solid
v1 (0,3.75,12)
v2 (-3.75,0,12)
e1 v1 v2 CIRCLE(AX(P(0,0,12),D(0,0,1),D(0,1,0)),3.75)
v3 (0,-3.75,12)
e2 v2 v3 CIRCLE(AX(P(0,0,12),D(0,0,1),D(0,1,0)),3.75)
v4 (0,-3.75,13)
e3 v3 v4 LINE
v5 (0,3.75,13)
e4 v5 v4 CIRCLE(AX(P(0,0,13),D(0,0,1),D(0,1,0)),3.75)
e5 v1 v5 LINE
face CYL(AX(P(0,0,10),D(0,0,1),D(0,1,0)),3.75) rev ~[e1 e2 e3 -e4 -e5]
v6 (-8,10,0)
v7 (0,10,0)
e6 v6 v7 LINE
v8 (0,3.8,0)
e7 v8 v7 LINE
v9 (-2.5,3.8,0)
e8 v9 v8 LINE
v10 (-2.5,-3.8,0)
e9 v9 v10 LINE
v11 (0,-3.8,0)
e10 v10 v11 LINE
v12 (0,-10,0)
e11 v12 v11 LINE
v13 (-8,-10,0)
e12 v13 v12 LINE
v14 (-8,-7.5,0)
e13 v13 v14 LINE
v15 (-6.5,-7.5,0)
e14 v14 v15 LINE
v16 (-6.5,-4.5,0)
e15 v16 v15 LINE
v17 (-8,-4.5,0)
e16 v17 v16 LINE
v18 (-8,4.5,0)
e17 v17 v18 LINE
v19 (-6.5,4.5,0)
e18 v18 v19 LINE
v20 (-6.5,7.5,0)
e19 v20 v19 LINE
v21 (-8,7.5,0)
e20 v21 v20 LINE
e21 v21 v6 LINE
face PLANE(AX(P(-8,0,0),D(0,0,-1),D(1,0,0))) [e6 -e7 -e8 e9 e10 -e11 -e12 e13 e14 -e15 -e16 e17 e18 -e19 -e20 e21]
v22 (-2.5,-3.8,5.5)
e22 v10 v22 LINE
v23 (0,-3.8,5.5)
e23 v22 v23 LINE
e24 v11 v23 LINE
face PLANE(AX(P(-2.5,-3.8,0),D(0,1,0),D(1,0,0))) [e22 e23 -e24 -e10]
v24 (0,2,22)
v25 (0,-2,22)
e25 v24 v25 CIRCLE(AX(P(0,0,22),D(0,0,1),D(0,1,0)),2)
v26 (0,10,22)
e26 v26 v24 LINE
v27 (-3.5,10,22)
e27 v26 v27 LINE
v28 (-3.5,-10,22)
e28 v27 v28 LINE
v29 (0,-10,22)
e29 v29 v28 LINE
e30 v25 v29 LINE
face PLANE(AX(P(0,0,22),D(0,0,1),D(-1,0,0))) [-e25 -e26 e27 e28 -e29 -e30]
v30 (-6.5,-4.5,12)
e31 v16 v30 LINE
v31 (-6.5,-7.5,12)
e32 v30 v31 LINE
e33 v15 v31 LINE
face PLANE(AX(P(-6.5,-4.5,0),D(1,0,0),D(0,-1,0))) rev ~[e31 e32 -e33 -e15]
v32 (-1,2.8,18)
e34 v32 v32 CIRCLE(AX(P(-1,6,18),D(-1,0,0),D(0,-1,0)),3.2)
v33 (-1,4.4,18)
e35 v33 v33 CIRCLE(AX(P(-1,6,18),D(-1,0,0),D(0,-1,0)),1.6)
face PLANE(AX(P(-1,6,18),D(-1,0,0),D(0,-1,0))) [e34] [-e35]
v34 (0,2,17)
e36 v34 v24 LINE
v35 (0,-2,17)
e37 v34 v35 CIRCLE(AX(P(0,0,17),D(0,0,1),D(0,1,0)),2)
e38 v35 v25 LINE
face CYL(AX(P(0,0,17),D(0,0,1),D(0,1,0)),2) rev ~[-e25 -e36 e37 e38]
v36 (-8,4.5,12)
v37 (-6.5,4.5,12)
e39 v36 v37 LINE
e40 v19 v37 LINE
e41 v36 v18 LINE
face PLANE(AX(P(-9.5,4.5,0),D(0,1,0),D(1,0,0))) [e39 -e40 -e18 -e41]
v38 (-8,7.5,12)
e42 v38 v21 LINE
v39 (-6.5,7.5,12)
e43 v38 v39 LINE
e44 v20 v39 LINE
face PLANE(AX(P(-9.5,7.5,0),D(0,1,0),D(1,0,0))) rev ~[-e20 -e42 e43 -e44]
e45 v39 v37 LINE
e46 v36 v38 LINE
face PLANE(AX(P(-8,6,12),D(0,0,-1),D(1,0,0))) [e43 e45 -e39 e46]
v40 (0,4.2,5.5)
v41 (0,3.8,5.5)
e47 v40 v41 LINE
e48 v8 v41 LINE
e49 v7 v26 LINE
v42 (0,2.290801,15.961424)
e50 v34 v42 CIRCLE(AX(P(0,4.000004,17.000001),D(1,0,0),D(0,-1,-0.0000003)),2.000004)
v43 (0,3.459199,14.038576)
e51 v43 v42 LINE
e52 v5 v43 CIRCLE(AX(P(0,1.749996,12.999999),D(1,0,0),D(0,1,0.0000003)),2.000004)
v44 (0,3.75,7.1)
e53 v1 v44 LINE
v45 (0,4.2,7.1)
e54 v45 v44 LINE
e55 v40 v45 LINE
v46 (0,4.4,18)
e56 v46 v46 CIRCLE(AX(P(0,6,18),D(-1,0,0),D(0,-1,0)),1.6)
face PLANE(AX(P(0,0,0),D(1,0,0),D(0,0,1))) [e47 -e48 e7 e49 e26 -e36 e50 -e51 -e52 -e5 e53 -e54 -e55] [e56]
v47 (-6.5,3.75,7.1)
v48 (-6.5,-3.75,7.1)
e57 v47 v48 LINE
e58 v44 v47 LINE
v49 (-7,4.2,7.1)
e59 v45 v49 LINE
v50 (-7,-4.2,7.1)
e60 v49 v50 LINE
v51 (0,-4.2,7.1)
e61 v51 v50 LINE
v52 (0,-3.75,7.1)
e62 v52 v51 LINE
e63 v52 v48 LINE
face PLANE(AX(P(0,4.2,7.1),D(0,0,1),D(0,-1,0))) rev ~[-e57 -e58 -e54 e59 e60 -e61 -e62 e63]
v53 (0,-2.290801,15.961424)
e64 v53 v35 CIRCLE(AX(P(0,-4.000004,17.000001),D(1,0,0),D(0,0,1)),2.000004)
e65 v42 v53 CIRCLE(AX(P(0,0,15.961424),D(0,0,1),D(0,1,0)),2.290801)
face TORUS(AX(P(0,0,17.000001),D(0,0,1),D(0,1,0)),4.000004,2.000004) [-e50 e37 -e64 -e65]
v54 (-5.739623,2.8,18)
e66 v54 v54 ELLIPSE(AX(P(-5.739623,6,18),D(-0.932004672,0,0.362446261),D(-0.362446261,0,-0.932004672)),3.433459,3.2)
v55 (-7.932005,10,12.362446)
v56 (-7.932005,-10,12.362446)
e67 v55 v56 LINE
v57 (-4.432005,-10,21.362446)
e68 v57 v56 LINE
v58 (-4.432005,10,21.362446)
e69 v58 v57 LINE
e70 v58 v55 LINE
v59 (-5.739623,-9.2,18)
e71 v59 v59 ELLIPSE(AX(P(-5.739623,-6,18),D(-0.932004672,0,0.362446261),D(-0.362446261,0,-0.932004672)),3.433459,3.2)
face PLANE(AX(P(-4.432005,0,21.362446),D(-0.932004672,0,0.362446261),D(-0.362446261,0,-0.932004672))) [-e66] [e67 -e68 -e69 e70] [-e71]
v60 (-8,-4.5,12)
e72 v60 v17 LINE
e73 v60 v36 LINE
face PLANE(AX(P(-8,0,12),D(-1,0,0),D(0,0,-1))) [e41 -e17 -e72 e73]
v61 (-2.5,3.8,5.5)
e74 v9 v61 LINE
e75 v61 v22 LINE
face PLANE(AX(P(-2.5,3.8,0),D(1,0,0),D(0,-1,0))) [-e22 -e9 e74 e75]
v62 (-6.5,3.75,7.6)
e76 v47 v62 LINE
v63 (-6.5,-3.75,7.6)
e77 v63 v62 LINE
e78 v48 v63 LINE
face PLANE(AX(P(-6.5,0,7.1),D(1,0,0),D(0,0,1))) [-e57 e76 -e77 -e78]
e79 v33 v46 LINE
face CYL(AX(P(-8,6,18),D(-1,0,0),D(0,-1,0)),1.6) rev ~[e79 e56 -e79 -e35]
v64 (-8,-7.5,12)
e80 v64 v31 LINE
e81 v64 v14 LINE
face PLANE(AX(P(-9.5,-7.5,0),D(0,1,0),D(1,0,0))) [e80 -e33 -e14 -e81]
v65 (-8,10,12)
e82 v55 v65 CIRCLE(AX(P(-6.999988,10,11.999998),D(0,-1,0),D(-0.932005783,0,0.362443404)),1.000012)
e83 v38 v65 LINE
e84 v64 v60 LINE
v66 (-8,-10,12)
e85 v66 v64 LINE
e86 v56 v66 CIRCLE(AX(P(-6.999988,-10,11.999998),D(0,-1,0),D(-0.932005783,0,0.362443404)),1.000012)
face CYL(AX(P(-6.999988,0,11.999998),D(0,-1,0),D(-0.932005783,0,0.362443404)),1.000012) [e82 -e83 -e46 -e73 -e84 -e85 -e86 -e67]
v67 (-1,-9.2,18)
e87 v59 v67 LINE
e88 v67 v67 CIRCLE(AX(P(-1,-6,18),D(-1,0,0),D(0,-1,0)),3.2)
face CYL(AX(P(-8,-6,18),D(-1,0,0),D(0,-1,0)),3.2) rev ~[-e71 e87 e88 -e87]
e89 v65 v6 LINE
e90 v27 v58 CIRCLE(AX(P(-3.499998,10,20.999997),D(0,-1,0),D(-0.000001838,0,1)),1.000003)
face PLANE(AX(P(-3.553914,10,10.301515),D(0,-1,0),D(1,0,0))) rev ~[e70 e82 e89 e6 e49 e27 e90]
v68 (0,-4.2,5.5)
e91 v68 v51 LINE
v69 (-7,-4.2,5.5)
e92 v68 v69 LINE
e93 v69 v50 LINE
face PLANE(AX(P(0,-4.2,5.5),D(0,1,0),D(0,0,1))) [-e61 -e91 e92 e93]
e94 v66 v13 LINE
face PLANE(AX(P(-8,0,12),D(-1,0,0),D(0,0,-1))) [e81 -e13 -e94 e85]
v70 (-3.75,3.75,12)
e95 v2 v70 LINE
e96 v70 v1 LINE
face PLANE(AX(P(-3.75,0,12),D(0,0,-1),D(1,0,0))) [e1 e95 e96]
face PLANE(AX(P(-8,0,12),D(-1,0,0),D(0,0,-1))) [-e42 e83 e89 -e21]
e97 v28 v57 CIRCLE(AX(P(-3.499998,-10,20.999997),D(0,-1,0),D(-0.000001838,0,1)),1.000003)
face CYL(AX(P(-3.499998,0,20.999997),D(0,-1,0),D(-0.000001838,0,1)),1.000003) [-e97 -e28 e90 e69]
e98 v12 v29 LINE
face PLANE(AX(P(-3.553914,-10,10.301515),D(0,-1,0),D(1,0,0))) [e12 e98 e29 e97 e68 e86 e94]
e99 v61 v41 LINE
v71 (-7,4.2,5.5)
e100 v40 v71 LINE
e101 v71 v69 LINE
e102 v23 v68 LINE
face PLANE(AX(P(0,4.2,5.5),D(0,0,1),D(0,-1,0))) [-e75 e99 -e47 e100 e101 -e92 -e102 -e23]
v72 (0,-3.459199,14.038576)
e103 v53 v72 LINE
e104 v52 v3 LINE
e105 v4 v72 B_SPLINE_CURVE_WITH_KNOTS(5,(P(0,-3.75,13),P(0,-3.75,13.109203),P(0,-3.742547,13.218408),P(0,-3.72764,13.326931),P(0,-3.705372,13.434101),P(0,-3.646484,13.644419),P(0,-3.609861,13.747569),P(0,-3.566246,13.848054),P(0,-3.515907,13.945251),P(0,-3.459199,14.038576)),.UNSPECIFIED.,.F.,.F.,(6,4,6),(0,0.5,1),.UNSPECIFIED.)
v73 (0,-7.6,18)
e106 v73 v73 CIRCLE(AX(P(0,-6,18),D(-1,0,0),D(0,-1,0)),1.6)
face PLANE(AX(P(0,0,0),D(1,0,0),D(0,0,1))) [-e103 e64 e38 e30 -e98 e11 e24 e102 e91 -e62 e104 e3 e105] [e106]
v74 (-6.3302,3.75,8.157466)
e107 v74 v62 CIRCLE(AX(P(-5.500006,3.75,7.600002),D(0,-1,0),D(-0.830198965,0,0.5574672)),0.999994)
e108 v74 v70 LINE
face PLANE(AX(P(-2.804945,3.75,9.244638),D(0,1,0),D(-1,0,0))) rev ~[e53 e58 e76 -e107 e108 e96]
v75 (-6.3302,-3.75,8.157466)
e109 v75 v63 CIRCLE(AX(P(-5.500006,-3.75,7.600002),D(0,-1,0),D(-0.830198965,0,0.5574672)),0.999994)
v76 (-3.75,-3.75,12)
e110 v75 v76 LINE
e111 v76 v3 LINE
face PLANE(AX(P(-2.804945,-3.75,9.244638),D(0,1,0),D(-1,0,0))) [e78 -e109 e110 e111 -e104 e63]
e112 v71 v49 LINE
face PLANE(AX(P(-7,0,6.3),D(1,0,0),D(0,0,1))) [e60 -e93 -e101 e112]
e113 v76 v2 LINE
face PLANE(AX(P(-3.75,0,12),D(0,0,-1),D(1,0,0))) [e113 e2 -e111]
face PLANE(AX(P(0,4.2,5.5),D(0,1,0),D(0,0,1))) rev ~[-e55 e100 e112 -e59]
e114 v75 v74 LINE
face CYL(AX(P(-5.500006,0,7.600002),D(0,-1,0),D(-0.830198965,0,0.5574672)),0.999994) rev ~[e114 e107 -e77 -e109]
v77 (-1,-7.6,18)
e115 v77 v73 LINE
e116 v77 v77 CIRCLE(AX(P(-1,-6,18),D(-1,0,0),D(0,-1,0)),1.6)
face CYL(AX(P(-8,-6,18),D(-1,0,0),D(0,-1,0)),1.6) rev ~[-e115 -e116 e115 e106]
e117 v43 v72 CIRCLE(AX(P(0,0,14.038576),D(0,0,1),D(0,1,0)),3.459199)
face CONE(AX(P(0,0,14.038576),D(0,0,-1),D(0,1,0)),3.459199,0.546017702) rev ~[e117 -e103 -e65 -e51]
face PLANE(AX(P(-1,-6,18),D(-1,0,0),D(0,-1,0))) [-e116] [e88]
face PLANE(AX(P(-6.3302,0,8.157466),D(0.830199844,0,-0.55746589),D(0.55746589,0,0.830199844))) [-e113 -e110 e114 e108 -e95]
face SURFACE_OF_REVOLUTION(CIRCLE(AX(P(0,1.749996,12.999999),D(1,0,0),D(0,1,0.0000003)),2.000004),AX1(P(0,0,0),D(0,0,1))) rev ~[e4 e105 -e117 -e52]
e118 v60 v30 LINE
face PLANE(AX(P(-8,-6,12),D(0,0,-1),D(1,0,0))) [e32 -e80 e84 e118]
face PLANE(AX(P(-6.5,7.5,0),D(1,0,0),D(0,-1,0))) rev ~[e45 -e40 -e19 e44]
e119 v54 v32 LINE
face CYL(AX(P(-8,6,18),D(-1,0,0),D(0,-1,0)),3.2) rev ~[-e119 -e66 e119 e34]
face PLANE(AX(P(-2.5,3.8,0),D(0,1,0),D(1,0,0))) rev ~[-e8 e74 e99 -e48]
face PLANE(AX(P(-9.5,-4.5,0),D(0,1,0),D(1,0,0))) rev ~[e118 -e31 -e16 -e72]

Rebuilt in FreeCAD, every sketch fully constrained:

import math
import FreeCAD as App
import Part
import Sketcher

doc = App.newDocument("Part")
body = doc.addObject("PartDesign::Body", "Body")

sketch1 = doc.addObject("Sketcher::SketchObject", "Sketch")
body.addObject(sketch1)
sketch1.AttachmentSupport = (doc.YZ_Plane, [""])
sketch1.MapMode = "FlatFace"
sketch1.addGeometry([
    Part.LineSegment(App.Vector(0, 24, 0), App.Vector(0, 10, 0)),
    Part.LineSegment(App.Vector(0, 10, 0), App.Vector(3.8, 10, 0)),
    Part.LineSegment(App.Vector(3.8, 10, 0), App.Vector(3.8, 13, 0)),
    Part.ArcOfCircle(Part.Circle(App.Vector(1.7, 13, 0), App.Vector(0, 0, 1), 2), math.radians(0), math.radians(31)),
    Part.LineSegment(App.Vector(3.5, 14, 0), App.Vector(2.3, 16, 0)),
    Part.ArcOfCircle(Part.Circle(App.Vector(4, 17, 0), App.Vector(0, 0, 1), 2), math.radians(-180), math.radians(-149)),
    Part.LineSegment(App.Vector(2, 17, 0), App.Vector(2, 24, 0)),
    Part.LineSegment(App.Vector(2, 24, 0), App.Vector(0, 24, 0)),
], False)
sketch1.addConstraint([
    Sketcher.Constraint("Coincident", 0, 2, 1, 1),
    Sketcher.Constraint("Coincident", 1, 2, 2, 1),
    Sketcher.Constraint("Tangent", 2, 2, 3, 1),
    Sketcher.Constraint("Tangent", 3, 2, 4, 1),
    Sketcher.Constraint("Tangent", 4, 2, 5, 2),
    Sketcher.Constraint("Tangent", 5, 1, 6, 1),
    Sketcher.Constraint("Coincident", 6, 2, 7, 1),
    Sketcher.Constraint("Coincident", 7, 2, 0, 1),
    Sketcher.Constraint("Vertical", 0),
    Sketcher.Constraint("Horizontal", 1),
    Sketcher.Constraint("Vertical", 2),
    Sketcher.Constraint("Vertical", 6),
    Sketcher.Constraint("Horizontal", 7),
    Sketcher.Constraint("Equal", 3, 5),
    Sketcher.Constraint("PointOnObject", 0, 2, -2),
    Sketcher.Constraint("DistanceX", 7, 2, 7, 1, 2.0),
    Sketcher.Constraint("DistanceY", 0, 2, 0, 1, 14.0),
    Sketcher.Constraint("DistanceY", 2, 1, 2, 2, 3.0),
    Sketcher.Constraint("DistanceY", 6, 1, 6, 2, 7.0),
    Sketcher.Constraint("DistanceY", -1, 1, 3, 3, 12.999999),
    Sketcher.Constraint("DistanceX", 1, 1, 1, 2, 3.75),
    Sketcher.Constraint("Distance", 4, 2.25),
])
revolution = doc.addObject("PartDesign::Revolution", "Revolution")
body.addObject(revolution)
revolution.Profile = sketch1
revolution.ReferenceAxis = (sketch1, ["V_Axis"])
revolution.Angle = 360
body2 = doc.addObject("PartDesign::Body", "Body001")

sketch2 = doc.addObject("Sketcher::SketchObject", "Sketch001")
body2.addObject(sketch2)
sketch2.AttachmentSupport = (doc.getObject("XZ_Plane001"), [""])
sketch2.MapMode = "FlatFace"
sketch2.addGeometry([
    Part.LineSegment(App.Vector(-6.5, 7.6, 0), App.Vector(-6.5, 7.1, 0)),
    Part.LineSegment(App.Vector(-6.5, 7.1, 0), App.Vector(0, 7.1, 0)),
    Part.LineSegment(App.Vector(0, 7.1, 0), App.Vector(0, 12, 0)),
    Part.LineSegment(App.Vector(0, 12, 0), App.Vector(-3.8, 12, 0)),
    Part.LineSegment(App.Vector(-3.8, 12, 0), App.Vector(-6.3, 8.2, 0)),
    Part.ArcOfCircle(Part.Circle(App.Vector(-5.5, 7.6, 0), App.Vector(0, 0, 1), 1), math.radians(146), math.radians(180)),
], False)
sketch2.addConstraint([
    Sketcher.Constraint("Coincident", 0, 2, 1, 1),
    Sketcher.Constraint("Coincident", 1, 2, 2, 1),
    Sketcher.Constraint("Coincident", 2, 2, 3, 1),
    Sketcher.Constraint("Coincident", 3, 2, 4, 1),
    Sketcher.Constraint("Tangent", 4, 2, 5, 1),
    Sketcher.Constraint("Coincident", 5, 2, 0, 1),
    Sketcher.Constraint("Vertical", 0),
    Sketcher.Constraint("Horizontal", 1),
    Sketcher.Constraint("Vertical", 2),
    Sketcher.Constraint("Horizontal", 3),
    Sketcher.Constraint("PointOnObject", 1, 2, -2),
    Sketcher.Constraint("DistanceX", 1, 1, 1, 2, 6.5),
    Sketcher.Constraint("DistanceY", 0, 2, 0, 1, 0.5),
    Sketcher.Constraint("DistanceY", 2, 1, 2, 2, 4.9),
    Sketcher.Constraint("DistanceY", -1, 1, 2, 2, 12.0),
    Sketcher.Constraint("DistanceX", 3, 2, 3, 1, 3.75),
    Sketcher.Constraint("Radius", 5, 0.999994),
    Sketcher.Constraint("DistanceX", 4, 2, -1, 1, 6.3302),
])
pad1 = doc.addObject("PartDesign::Pad", "Pad")
body2.addObject(pad1)
pad1.Profile = sketch2
pad1.Length = 7.5
pad1.Midplane = True
body3 = doc.addObject("PartDesign::Body", "Body002")

sketch3 = doc.addObject("Sketcher::SketchObject", "Sketch002")
body3.addObject(sketch3)
sketch3.AttachmentSupport = (doc.getObject("XZ_Plane002"), [""])
sketch3.MapMode = "FlatFace"
sketch3.addGeometry([
    Part.LineSegment(App.Vector(0, 0, 0), App.Vector(0, 22, 0)),
    Part.LineSegment(App.Vector(0, 22, 0), App.Vector(-3.5, 22, 0)),
    Part.ArcOfCircle(Part.Circle(App.Vector(-3.5, 21, 0), App.Vector(0, 0, 1), 1), math.radians(90), math.radians(159)),
    Part.LineSegment(App.Vector(-4.43, 21.36, 0), App.Vector(-7.93, 12.36, 0)),
    Part.ArcOfCircle(Part.Circle(App.Vector(-7, 12, 0), App.Vector(0, 0, 1), 1), math.radians(159), math.radians(180)),
    Part.LineSegment(App.Vector(-8, 12, 0), App.Vector(-8, 0, 0)),
    Part.LineSegment(App.Vector(-8, 0, 0), App.Vector(0, 0, 0)),
], False)
sketch3.addConstraint([
    Sketcher.Constraint("Coincident", 0, 2, 1, 1),
    Sketcher.Constraint("Tangent", 1, 2, 2, 1),
    Sketcher.Constraint("Tangent", 2, 2, 3, 1),
    Sketcher.Constraint("Coincident", 3, 2, 4, 1),
    Sketcher.Constraint("Tangent", 4, 2, 5, 1),
    Sketcher.Constraint("Coincident", 5, 2, 6, 1),
    Sketcher.Constraint("Coincident", 6, 2, 0, 1),
    Sketcher.Constraint("Vertical", 0),
    Sketcher.Constraint("Horizontal", 1),
    Sketcher.Constraint("Vertical", 5),
    Sketcher.Constraint("Horizontal", 6),
    Sketcher.Constraint("Coincident", 6, 2, -1, 1),
    Sketcher.Constraint("DistanceX", 6, 1, 6, 2, 8.0),
    Sketcher.Constraint("DistanceY", 0, 1, 0, 2, 22.0),
    Sketcher.Constraint("DistanceY", 5, 2, 5, 1, 12.0),
    Sketcher.Constraint("DistanceX", 1, 2, 1, 1, 3.5),
    Sketcher.Constraint("DistanceY", 4, 3, 2, 3, 8.999999),
    Sketcher.Constraint("DistanceY", 3, 2, 2, 2, 9.0),
    Sketcher.Constraint("DistanceX", 3, 2, 2, 2, 3.5),
])
pad2 = doc.addObject("PartDesign::Pad", "Pad001")
body3.addObject(pad2)
pad2.Profile = sketch3
pad2.Length = 20
pad2.Midplane = True

sketch4 = doc.addObject("Sketcher::SketchObject", "Sketch003")
body3.addObject(sketch4)
sketch4.AttachmentSupport = (doc.getObject("YZ_Plane002"), [""])
sketch4.MapMode = "FlatFace"
sketch4.addGeometry([
    Part.LineSegment(App.Vector(-4.2, 5.5, 0), App.Vector(4.2, 5.5, 0)),
    Part.LineSegment(App.Vector(4.2, 5.5, 0), App.Vector(4.2, 7.1, 0)),
    Part.LineSegment(App.Vector(4.2, 7.1, 0), App.Vector(-4.2, 7.1, 0)),
    Part.LineSegment(App.Vector(-4.2, 7.1, 0), App.Vector(-4.2, 5.5, 0)),
], False)
sketch4.addConstraint([
    Sketcher.Constraint("Coincident", 0, 2, 1, 1),
    Sketcher.Constraint("Coincident", 1, 2, 2, 1),
    Sketcher.Constraint("Coincident", 2, 2, 3, 1),
    Sketcher.Constraint("Coincident", 3, 2, 0, 1),
    Sketcher.Constraint("Horizontal", 0),
    Sketcher.Constraint("Vertical", 1),
    Sketcher.Constraint("Horizontal", 2),
    Sketcher.Constraint("Vertical", 3),
    Sketcher.Constraint("DistanceX", 0, 1, 0, 2, 8.4),
    Sketcher.Constraint("DistanceY", 1, 1, 1, 2, 1.6),
    Sketcher.Constraint("DistanceX", -1, 1, 0, 2, 4.2),
    Sketcher.Constraint("DistanceY", -1, 1, 0, 2, 5.5),
])
pocket1 = doc.addObject("PartDesign::Pocket", "Pocket")
body3.addObject(pocket1)
pocket1.Profile = sketch4
pocket1.Length = 7
doc.recompute()

boolean = doc.addObject("PartDesign::Boolean", "Boolean")
body3.addObject(boolean)
boolean.Type = "Cut"
boolean.addObjects([body2])
doc.recompute()

boolean2 = doc.addObject("PartDesign::Boolean", "Boolean001")
body3.addObject(boolean2)
boolean2.Type = "Cut"
boolean2.addObjects([body])

sketch5 = doc.addObject("Sketcher::SketchObject", "Sketch004")
body3.addObject(sketch5)
sketch5.AttachmentSupport = (doc.getObject("YZ_Plane002"), [""])
sketch5.MapMode = "FlatFace"
sketch5.AttachmentOffset = App.Placement(App.Vector(0, 0, -8), App.Rotation())
sketch5.addGeometry([
    Part.Circle(App.Vector(6, 18, 0), App.Vector(0, 0, 1), 3.2),
    Part.Circle(App.Vector(-6, 18, 0), App.Vector(0, 0, 1), 3.2),
], False)
sketch5.addConstraint([
    Sketcher.Constraint("Equal", 0, 1),
    Sketcher.Constraint("Symmetric", 0, 3, 1, 3, -2),
    Sketcher.Constraint("Diameter", 0, 6.4),
    Sketcher.Constraint("DistanceX", -1, 1, 0, 3, 6.0),
    Sketcher.Constraint("DistanceY", -1, 1, 0, 3, 18.0),
])
pocket2 = doc.addObject("PartDesign::Pocket", "Pocket001")
body3.addObject(pocket2)
pocket2.Profile = sketch5
pocket2.Length = 7
pocket2.Reversed = True

sketch6 = doc.addObject("Sketcher::SketchObject", "Sketch005")
body3.addObject(sketch6)
sketch6.AttachmentSupport = (doc.getObject("YZ_Plane002"), [""])
sketch6.MapMode = "FlatFace"
sketch6.AttachmentOffset = App.Placement(App.Vector(0, 0, -8), App.Rotation())
sketch6.addGeometry([
    Part.Circle(App.Vector(6, 18, 0), App.Vector(0, 0, 1), 1.6),
    Part.Circle(App.Vector(-6, 18, 0), App.Vector(0, 0, 1), 1.6),
], False)
sketch6.addConstraint([
    Sketcher.Constraint("Equal", 0, 1),
    Sketcher.Constraint("Symmetric", 0, 3, 1, 3, -2),
    Sketcher.Constraint("Diameter", 0, 3.2),
    Sketcher.Constraint("DistanceX", -1, 1, 0, 3, 6.0),
    Sketcher.Constraint("DistanceY", -1, 1, 0, 3, 18.0),
])
pocket3 = doc.addObject("PartDesign::Pocket", "Pocket002")
body3.addObject(pocket3)
pocket3.Profile = sketch6
pocket3.Length = 8
pocket3.Reversed = True

sketch7 = doc.addObject("Sketcher::SketchObject", "Sketch006")
body3.addObject(sketch7)
sketch7.AttachmentSupport = (doc.getObject("XY_Plane002"), [""])
sketch7.MapMode = "FlatFace"
sketch7.addGeometry([
    Part.LineSegment(App.Vector(-2.5, -3.8, 0), App.Vector(-2.5, 3.8, 0)),
    Part.LineSegment(App.Vector(-2.5, 3.8, 0), App.Vector(0, 3.8, 0)),
    Part.LineSegment(App.Vector(0, 3.8, 0), App.Vector(0, -3.8, 0)),
    Part.LineSegment(App.Vector(0, -3.8, 0), App.Vector(-2.5, -3.8, 0)),
], False)
sketch7.addConstraint([
    Sketcher.Constraint("Coincident", 0, 2, 1, 1),
    Sketcher.Constraint("Coincident", 1, 2, 2, 1),
    Sketcher.Constraint("Coincident", 2, 2, 3, 1),
    Sketcher.Constraint("Coincident", 3, 2, 0, 1),
    Sketcher.Constraint("Vertical", 0),
    Sketcher.Constraint("Horizontal", 1),
    Sketcher.Constraint("Vertical", 2),
    Sketcher.Constraint("Horizontal", 3),
    Sketcher.Constraint("Symmetric", 1, 2, 2, 2, -1, 1),
    Sketcher.Constraint("DistanceX", 1, 1, 1, 2, 2.5),
    Sketcher.Constraint("DistanceY", 0, 1, 0, 2, 7.6),
])
pocket4 = doc.addObject("PartDesign::Pocket", "Pocket003")
body3.addObject(pocket4)
pocket4.Profile = sketch7
pocket4.Length = 5.5
pocket4.Reversed = True

sketch8 = doc.addObject("Sketcher::SketchObject", "Sketch007")
body3.addObject(sketch8)
sketch8.AttachmentSupport = (doc.getObject("XY_Plane002"), [""])
sketch8.MapMode = "FlatFace"
sketch8.addGeometry([
    Part.LineSegment(App.Vector(-9.5, -7.5, 0), App.Vector(-9.5, -4.5, 0)),
    Part.LineSegment(App.Vector(-9.5, -4.5, 0), App.Vector(-6.5, -4.5, 0)),
    Part.LineSegment(App.Vector(-6.5, -4.5, 0), App.Vector(-6.5, -7.5, 0)),
    Part.LineSegment(App.Vector(-6.5, -7.5, 0), App.Vector(-9.5, -7.5, 0)),
    Part.LineSegment(App.Vector(-9.5, 4.5, 0), App.Vector(-9.5, 7.5, 0)),
    Part.LineSegment(App.Vector(-9.5, 7.5, 0), App.Vector(-6.5, 7.5, 0)),
    Part.LineSegment(App.Vector(-6.5, 7.5, 0), App.Vector(-6.5, 4.5, 0)),
    Part.LineSegment(App.Vector(-6.5, 4.5, 0), App.Vector(-9.5, 4.5, 0)),
], False)
sketch8.addConstraint([
    Sketcher.Constraint("Coincident", 0, 2, 1, 1),
    Sketcher.Constraint("Coincident", 1, 2, 2, 1),
    Sketcher.Constraint("Coincident", 2, 2, 3, 1),
    Sketcher.Constraint("Coincident", 3, 2, 0, 1),
    Sketcher.Constraint("Coincident", 4, 2, 5, 1),
    Sketcher.Constraint("Coincident", 5, 2, 6, 1),
    Sketcher.Constraint("Coincident", 6, 2, 7, 1),
    Sketcher.Constraint("Coincident", 7, 2, 4, 1),
    Sketcher.Constraint("Vertical", 0),
    Sketcher.Constraint("Horizontal", 1),
    Sketcher.Constraint("Vertical", 2),
    Sketcher.Constraint("Horizontal", 3),
    Sketcher.Constraint("Vertical", 4),
    Sketcher.Constraint("Horizontal", 5),
    Sketcher.Constraint("Vertical", 6),
    Sketcher.Constraint("Horizontal", 7),
    Sketcher.Constraint("Symmetric", 3, 2, 4, 2, -1),
    Sketcher.Constraint("Symmetric", 1, 2, 6, 2, -1),
    Sketcher.Constraint("Equal", 7, 0),
    Sketcher.Constraint("DistanceX", 1, 1, 1, 2, 3.0),
    Sketcher.Constraint("DistanceY", 0, 2, 4, 2, 12.0),
    Sketcher.Constraint("DistanceX", 0, 2, -1, 1, 9.5),
])
pocket5 = doc.addObject("PartDesign::Pocket", "Pocket004")
body3.addObject(pocket5)
pocket5.Profile = sketch8
pocket5.Length = 12
pocket5.Reversed = True

doc.recompute()
